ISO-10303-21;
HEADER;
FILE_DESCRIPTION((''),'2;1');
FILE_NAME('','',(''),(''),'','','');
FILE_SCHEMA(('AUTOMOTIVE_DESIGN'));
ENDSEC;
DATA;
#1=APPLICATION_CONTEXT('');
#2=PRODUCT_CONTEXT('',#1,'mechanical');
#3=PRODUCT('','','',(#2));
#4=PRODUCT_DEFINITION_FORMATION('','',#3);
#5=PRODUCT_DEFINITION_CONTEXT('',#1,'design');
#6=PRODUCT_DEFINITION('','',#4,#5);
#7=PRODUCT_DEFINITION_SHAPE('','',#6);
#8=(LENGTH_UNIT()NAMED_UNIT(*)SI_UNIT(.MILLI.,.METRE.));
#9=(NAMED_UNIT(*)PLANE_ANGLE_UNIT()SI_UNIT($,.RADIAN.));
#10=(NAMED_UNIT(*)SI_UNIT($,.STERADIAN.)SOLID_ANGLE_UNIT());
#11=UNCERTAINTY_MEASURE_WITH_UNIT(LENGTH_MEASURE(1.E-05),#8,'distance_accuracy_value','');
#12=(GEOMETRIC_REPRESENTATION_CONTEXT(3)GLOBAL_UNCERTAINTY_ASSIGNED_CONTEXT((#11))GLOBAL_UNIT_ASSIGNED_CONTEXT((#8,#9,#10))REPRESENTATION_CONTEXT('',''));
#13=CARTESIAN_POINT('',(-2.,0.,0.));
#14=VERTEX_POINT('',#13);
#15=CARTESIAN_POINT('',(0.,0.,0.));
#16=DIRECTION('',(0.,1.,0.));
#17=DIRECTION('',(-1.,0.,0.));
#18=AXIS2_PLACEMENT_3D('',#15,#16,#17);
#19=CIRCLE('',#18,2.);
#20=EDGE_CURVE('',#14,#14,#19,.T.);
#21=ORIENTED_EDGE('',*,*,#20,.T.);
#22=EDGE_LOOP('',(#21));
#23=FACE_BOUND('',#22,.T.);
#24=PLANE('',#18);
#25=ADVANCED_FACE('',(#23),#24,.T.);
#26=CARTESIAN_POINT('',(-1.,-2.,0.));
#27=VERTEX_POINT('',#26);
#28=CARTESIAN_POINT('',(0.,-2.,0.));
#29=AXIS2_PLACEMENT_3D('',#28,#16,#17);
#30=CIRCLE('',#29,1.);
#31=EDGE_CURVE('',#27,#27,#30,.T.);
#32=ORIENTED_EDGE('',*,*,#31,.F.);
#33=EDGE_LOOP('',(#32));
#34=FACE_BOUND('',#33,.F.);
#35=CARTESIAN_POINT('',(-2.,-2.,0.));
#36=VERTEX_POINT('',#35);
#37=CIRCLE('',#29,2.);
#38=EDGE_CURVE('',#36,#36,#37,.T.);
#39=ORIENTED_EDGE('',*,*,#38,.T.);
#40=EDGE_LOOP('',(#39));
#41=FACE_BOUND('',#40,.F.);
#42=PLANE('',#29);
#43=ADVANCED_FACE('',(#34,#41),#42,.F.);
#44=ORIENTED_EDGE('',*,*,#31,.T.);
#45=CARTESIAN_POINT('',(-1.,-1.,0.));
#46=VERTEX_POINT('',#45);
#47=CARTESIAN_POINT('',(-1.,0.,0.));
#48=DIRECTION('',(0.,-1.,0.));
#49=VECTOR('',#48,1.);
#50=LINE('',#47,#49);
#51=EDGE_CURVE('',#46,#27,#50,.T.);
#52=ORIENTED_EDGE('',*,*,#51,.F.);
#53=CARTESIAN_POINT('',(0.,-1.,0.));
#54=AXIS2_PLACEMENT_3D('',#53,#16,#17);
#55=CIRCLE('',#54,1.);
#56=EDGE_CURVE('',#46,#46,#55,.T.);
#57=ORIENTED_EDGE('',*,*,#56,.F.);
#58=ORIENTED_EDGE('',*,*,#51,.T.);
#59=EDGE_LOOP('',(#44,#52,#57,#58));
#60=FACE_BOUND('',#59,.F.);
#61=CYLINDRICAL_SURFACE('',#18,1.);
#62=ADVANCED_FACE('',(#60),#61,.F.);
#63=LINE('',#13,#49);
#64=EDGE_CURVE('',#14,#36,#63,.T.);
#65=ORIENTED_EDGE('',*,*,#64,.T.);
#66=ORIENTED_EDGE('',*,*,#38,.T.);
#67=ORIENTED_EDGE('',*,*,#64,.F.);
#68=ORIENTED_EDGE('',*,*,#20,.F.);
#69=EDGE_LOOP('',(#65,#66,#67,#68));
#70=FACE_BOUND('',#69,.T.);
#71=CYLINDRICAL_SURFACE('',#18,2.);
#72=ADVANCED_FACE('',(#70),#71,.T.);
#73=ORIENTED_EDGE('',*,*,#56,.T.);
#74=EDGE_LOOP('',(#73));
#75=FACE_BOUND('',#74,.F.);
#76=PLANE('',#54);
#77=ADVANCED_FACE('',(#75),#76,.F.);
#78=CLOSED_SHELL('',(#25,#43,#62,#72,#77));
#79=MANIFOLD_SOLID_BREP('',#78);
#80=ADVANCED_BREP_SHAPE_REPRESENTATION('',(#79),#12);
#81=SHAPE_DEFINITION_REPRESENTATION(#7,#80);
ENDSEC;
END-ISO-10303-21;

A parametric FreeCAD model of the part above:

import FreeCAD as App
import Part
import Sketcher
Q = App.Units.Quantity

doc = App.newDocument("Part")
body = doc.addObject("PartDesign::Body", "Body")

# Sketch on XZ plane
sketch1 = body.newObject("Sketcher::SketchObject", "Sketch")
sketch1.AttachmentSupport = (doc.getObject("XZ_Plane"), [""])
sketch1.MapMode = "FlatFace"
sketch1.addGeometry(Part.Circle(App.Vector(0, 0, 0), App.Vector(0, 0, 1), 1), False)
sketch1.addConstraint([
    Sketcher.Constraint("Coincident", 0, 3, -1, 1),
    Sketcher.Constraint("Diameter", 0, Q("2 mm")),
])
pad1 = body.newObject("PartDesign::Pad", "Pad")
pad1.Profile = sketch1
pad1.Length = 1

# Sketch on XZ plane
sketch2 = body.newObject("Sketcher::SketchObject", "Sketch001")
sketch2.AttachmentSupport = (doc.getObject("XZ_Plane"), [""])
sketch2.MapMode = "FlatFace"
sketch2.addGeometry([
    Part.Circle(App.Vector(0, 0, 0), App.Vector(0, 0, 1), 2),
    Part.Circle(App.Vector(0, 0, 0), App.Vector(0, 0, 1), 1),
], False)
sketch2.addConstraint([
    Sketcher.Constraint("Coincident", 0, 3, -1, 1),
    Sketcher.Constraint("Coincident", 1, 3, -1, 1),
    Sketcher.Constraint("Diameter", 0, Q("4 mm")),
    Sketcher.Constraint("Diameter", 1, Q("2 mm")),
])
pad2 = body.newObject("PartDesign::Pad", "Pad001")
pad2.Profile = sketch2
pad2.Length = 2

doc.recompute()
